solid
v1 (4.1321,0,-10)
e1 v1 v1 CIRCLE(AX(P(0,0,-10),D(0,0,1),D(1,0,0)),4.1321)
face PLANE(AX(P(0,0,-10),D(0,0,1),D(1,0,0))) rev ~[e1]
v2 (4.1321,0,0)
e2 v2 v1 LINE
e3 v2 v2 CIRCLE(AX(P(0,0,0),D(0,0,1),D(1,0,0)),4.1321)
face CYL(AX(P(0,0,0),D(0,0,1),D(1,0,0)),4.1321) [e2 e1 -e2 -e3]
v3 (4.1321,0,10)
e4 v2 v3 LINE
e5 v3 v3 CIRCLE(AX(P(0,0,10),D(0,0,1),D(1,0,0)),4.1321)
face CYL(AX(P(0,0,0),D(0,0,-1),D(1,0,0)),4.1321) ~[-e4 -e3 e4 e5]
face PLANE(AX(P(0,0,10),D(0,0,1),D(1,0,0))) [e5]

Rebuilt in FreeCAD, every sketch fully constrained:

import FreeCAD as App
import Part
import Sketcher

V = App.Vector

doc = App.newDocument("Part")
params = doc.addObject("Spreadsheet::Sheet", "Params")
for row, (alias, value) in enumerate([
    ("pad1_length", "20 mm"),
], start=1):
    params.set(f"A{row}", alias)
    params.set(f"B{row}", "=" + value)
    params.setAlias(f"B{row}", alias)

body = doc.addObject("PartDesign::Body", "Body")

sketch1 = body.newObject("Sketcher::SketchObject", "Sketch")
sketch1.AttachmentSupport = (doc.getObject("XY_Plane"), [""])
sketch1.MapMode = "FlatFace"
sketch1.addGeometry(Part.Circle(V(0, 0, 0), V(0, 0, 1), 4.1321), False)
sketch1.addConstraint([
    Sketcher.Constraint("Coincident", 0, 3, -1, 1),
    Sketcher.Constraint("Diameter", 0, 8.2642),
])
pad1 = body.newObject("PartDesign::Pad", "Pad")
pad1.Profile = sketch1
pad1.setExpression("Length", "Params.pad1_length")
pad1.Midplane = True

doc.recompute()
